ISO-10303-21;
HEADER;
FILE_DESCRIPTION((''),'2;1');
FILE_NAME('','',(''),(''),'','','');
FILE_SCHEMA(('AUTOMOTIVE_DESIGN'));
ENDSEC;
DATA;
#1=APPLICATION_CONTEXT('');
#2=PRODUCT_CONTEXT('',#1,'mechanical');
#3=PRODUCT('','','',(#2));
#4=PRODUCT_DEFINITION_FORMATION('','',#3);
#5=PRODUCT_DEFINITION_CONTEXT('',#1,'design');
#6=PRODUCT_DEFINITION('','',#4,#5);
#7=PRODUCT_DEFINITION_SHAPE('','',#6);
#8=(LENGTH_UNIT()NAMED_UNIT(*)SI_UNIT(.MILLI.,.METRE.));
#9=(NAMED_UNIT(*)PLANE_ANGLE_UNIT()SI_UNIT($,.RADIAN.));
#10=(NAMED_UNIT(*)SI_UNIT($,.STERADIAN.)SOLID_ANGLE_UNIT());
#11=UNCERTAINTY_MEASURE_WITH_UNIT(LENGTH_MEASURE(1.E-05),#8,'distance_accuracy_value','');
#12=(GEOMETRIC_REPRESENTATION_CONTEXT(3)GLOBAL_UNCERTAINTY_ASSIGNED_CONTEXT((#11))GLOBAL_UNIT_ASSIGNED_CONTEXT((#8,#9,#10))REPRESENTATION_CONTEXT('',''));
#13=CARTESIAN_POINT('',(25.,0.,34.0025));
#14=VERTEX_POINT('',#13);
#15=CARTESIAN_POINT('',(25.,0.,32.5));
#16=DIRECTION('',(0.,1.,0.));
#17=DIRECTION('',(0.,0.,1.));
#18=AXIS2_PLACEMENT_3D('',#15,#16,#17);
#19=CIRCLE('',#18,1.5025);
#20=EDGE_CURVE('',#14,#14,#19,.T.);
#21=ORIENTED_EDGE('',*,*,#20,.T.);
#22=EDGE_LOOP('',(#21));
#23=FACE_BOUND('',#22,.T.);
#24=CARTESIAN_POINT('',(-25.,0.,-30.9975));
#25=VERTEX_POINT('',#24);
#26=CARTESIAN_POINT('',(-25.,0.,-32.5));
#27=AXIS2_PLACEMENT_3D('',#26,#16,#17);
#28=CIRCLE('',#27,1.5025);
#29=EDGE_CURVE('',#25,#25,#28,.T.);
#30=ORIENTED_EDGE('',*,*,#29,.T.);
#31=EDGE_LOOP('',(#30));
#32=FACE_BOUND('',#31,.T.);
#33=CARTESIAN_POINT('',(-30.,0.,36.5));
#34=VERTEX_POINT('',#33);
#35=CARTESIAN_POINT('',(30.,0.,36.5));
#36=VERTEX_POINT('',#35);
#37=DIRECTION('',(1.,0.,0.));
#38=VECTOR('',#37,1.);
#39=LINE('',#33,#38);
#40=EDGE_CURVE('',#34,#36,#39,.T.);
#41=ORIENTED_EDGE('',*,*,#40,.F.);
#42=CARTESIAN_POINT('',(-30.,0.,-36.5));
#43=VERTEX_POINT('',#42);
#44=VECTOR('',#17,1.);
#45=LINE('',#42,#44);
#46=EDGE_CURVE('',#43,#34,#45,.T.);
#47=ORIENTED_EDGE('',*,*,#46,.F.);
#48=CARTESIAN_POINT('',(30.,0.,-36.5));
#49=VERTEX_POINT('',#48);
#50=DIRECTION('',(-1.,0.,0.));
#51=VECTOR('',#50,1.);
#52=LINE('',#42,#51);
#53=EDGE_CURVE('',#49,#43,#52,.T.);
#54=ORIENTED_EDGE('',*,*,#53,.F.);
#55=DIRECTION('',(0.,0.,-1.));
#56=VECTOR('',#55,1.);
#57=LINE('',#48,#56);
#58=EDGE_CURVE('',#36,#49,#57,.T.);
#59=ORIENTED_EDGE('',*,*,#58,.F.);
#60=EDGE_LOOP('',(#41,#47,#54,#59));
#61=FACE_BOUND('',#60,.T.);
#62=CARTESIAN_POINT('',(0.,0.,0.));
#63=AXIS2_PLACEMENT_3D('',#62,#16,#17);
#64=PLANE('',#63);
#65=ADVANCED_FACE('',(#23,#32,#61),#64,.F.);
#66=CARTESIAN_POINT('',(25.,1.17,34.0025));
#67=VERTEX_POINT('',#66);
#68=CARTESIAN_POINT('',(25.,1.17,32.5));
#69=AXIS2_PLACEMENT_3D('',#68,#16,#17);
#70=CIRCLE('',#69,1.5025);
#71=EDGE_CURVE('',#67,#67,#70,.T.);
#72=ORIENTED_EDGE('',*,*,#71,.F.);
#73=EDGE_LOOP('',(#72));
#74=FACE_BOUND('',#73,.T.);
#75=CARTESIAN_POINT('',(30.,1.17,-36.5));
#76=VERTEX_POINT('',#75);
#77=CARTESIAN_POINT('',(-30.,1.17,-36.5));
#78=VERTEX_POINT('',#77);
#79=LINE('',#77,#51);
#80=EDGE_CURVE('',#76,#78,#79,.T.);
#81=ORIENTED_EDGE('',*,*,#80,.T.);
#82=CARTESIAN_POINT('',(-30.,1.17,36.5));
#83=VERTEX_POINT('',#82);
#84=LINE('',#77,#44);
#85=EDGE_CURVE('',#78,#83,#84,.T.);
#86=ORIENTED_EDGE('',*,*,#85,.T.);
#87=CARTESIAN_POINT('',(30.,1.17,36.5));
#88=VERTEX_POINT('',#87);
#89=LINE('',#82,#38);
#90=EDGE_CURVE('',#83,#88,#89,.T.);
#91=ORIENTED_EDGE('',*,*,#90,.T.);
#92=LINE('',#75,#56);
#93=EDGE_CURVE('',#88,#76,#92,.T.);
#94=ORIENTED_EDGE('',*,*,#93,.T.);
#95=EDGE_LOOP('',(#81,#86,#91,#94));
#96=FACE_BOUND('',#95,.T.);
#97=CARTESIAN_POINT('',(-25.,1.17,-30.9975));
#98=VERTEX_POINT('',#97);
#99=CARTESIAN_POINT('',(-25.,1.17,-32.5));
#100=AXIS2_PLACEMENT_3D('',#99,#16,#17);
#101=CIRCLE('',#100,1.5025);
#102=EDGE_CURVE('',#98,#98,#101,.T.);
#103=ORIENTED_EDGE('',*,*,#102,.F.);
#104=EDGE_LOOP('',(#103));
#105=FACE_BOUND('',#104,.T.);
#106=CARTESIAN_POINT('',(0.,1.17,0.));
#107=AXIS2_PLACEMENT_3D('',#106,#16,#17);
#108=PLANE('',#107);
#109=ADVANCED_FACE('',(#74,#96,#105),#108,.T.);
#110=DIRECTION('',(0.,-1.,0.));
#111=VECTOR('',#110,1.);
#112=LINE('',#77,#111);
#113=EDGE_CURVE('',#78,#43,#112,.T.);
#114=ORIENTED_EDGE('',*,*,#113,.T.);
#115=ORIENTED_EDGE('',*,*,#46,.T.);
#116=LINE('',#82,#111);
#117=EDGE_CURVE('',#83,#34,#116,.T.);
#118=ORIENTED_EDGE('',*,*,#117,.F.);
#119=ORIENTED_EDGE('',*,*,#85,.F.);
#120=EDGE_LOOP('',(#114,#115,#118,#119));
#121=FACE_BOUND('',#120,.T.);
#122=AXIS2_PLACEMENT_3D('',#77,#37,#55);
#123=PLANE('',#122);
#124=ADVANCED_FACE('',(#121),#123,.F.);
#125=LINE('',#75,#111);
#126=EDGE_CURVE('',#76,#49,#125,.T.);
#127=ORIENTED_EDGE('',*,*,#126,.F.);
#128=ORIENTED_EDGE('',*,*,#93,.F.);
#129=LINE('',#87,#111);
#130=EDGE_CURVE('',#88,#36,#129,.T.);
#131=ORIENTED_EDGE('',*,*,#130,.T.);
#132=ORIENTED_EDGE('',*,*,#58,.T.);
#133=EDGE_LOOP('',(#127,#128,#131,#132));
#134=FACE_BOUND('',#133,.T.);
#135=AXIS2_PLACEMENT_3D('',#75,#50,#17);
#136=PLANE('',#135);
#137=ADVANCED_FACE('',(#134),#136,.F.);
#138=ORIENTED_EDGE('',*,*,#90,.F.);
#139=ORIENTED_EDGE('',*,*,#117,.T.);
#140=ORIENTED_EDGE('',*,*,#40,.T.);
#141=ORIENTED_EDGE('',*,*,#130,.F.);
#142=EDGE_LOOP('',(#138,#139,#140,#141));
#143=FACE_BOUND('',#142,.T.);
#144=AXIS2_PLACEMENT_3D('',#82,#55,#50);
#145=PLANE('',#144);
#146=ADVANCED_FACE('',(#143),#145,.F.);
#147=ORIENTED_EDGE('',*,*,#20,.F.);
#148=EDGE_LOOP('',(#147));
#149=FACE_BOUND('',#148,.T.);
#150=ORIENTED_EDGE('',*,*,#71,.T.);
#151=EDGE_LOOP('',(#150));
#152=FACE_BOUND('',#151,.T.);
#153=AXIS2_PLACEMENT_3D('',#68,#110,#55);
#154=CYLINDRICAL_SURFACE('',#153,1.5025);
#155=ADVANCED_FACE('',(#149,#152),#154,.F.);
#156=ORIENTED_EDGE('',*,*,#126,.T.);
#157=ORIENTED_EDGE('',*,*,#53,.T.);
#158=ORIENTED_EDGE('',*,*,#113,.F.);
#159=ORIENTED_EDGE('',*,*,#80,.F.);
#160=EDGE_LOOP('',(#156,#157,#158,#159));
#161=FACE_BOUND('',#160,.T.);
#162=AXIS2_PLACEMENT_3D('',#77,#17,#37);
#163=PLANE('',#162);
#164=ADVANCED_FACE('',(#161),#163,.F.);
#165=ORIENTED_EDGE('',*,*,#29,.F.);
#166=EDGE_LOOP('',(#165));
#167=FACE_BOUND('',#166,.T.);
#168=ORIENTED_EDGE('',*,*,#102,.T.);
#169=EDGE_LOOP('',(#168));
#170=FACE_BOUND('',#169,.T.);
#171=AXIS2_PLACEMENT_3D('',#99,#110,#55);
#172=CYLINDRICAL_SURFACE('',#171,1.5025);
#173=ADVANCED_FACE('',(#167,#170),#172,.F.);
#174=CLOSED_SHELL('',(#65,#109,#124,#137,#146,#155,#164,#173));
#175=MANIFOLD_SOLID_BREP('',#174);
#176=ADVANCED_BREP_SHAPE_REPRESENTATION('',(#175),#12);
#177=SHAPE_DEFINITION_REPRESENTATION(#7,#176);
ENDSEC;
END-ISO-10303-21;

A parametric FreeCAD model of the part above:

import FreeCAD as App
import Part
import Sketcher
from FreeCAD import Vector

doc = App.newDocument("Part")
body = doc.addObject("PartDesign::Body", "Body")

# Sketch on XZ plane
sketch1 = body.newObject("Sketcher::SketchObject", "Sketch")
sketch1.AttachmentSupport = (doc.getObject("XZ_Plane"), [""])
sketch1.MapMode = "FlatFace"
sketch1.addGeometry([
    Part.LineSegment(Vector(-30, -36.5, 0), Vector(-30, 36.5, 0)),  # 0
    Part.LineSegment(Vector(-30, 36.5, 0), Vector(30, 36.5, 0)),  # 1
    Part.LineSegment(Vector(30, 36.5, 0), Vector(30, -36.5, 0)),  # 2
    Part.LineSegment(Vector(30, -36.5, 0), Vector(-30, -36.5, 0)),  # 3
    Part.Circle(Vector(25, 32.5, 0), Vector(0, 0, 1), 1.5),  # 4
    Part.Circle(Vector(-25, -32.5, 0), Vector(0, 0, 1), 1.5),  # 5
], False)
sketch1.addConstraint([
    Sketcher.Constraint("Coincident", 0, 2, 1, 1),
    Sketcher.Constraint("Coincident", 1, 2, 2, 1),
    Sketcher.Constraint("Coincident", 2, 2, 3, 1),
    Sketcher.Constraint("Coincident", 3, 2, 0, 1),
    Sketcher.Constraint("Vertical", 0),
    Sketcher.Constraint("Horizontal", 1),
    Sketcher.Constraint("Vertical", 2),
    Sketcher.Constraint("Horizontal", 3),
    Sketcher.Constraint("Equal", 4, 5),
    Sketcher.Constraint("Symmetric", 4, 3, 5, 3, -1, 1),
    Sketcher.Constraint("Symmetric", 0, 2, 2, 2, -1, 1),
    Sketcher.Constraint("DistanceX", 1, 1, 1, 2, 60.0),
    Sketcher.Constraint("DistanceY", 0, 1, 0, 2, 73.0),
    Sketcher.Constraint("Diameter", 4, 3.005),
    Sketcher.Constraint("DistanceX", -1, 1, 4, 3, 25.0),
    Sketcher.Constraint("DistanceY", 5, 3, 4, 3, 65.0),
])
pad1 = body.newObject("PartDesign::Pad", "Pad")
pad1.Profile = sketch1
pad1.Length = 1.17
pad1.Reversed = True

doc.recompute()
